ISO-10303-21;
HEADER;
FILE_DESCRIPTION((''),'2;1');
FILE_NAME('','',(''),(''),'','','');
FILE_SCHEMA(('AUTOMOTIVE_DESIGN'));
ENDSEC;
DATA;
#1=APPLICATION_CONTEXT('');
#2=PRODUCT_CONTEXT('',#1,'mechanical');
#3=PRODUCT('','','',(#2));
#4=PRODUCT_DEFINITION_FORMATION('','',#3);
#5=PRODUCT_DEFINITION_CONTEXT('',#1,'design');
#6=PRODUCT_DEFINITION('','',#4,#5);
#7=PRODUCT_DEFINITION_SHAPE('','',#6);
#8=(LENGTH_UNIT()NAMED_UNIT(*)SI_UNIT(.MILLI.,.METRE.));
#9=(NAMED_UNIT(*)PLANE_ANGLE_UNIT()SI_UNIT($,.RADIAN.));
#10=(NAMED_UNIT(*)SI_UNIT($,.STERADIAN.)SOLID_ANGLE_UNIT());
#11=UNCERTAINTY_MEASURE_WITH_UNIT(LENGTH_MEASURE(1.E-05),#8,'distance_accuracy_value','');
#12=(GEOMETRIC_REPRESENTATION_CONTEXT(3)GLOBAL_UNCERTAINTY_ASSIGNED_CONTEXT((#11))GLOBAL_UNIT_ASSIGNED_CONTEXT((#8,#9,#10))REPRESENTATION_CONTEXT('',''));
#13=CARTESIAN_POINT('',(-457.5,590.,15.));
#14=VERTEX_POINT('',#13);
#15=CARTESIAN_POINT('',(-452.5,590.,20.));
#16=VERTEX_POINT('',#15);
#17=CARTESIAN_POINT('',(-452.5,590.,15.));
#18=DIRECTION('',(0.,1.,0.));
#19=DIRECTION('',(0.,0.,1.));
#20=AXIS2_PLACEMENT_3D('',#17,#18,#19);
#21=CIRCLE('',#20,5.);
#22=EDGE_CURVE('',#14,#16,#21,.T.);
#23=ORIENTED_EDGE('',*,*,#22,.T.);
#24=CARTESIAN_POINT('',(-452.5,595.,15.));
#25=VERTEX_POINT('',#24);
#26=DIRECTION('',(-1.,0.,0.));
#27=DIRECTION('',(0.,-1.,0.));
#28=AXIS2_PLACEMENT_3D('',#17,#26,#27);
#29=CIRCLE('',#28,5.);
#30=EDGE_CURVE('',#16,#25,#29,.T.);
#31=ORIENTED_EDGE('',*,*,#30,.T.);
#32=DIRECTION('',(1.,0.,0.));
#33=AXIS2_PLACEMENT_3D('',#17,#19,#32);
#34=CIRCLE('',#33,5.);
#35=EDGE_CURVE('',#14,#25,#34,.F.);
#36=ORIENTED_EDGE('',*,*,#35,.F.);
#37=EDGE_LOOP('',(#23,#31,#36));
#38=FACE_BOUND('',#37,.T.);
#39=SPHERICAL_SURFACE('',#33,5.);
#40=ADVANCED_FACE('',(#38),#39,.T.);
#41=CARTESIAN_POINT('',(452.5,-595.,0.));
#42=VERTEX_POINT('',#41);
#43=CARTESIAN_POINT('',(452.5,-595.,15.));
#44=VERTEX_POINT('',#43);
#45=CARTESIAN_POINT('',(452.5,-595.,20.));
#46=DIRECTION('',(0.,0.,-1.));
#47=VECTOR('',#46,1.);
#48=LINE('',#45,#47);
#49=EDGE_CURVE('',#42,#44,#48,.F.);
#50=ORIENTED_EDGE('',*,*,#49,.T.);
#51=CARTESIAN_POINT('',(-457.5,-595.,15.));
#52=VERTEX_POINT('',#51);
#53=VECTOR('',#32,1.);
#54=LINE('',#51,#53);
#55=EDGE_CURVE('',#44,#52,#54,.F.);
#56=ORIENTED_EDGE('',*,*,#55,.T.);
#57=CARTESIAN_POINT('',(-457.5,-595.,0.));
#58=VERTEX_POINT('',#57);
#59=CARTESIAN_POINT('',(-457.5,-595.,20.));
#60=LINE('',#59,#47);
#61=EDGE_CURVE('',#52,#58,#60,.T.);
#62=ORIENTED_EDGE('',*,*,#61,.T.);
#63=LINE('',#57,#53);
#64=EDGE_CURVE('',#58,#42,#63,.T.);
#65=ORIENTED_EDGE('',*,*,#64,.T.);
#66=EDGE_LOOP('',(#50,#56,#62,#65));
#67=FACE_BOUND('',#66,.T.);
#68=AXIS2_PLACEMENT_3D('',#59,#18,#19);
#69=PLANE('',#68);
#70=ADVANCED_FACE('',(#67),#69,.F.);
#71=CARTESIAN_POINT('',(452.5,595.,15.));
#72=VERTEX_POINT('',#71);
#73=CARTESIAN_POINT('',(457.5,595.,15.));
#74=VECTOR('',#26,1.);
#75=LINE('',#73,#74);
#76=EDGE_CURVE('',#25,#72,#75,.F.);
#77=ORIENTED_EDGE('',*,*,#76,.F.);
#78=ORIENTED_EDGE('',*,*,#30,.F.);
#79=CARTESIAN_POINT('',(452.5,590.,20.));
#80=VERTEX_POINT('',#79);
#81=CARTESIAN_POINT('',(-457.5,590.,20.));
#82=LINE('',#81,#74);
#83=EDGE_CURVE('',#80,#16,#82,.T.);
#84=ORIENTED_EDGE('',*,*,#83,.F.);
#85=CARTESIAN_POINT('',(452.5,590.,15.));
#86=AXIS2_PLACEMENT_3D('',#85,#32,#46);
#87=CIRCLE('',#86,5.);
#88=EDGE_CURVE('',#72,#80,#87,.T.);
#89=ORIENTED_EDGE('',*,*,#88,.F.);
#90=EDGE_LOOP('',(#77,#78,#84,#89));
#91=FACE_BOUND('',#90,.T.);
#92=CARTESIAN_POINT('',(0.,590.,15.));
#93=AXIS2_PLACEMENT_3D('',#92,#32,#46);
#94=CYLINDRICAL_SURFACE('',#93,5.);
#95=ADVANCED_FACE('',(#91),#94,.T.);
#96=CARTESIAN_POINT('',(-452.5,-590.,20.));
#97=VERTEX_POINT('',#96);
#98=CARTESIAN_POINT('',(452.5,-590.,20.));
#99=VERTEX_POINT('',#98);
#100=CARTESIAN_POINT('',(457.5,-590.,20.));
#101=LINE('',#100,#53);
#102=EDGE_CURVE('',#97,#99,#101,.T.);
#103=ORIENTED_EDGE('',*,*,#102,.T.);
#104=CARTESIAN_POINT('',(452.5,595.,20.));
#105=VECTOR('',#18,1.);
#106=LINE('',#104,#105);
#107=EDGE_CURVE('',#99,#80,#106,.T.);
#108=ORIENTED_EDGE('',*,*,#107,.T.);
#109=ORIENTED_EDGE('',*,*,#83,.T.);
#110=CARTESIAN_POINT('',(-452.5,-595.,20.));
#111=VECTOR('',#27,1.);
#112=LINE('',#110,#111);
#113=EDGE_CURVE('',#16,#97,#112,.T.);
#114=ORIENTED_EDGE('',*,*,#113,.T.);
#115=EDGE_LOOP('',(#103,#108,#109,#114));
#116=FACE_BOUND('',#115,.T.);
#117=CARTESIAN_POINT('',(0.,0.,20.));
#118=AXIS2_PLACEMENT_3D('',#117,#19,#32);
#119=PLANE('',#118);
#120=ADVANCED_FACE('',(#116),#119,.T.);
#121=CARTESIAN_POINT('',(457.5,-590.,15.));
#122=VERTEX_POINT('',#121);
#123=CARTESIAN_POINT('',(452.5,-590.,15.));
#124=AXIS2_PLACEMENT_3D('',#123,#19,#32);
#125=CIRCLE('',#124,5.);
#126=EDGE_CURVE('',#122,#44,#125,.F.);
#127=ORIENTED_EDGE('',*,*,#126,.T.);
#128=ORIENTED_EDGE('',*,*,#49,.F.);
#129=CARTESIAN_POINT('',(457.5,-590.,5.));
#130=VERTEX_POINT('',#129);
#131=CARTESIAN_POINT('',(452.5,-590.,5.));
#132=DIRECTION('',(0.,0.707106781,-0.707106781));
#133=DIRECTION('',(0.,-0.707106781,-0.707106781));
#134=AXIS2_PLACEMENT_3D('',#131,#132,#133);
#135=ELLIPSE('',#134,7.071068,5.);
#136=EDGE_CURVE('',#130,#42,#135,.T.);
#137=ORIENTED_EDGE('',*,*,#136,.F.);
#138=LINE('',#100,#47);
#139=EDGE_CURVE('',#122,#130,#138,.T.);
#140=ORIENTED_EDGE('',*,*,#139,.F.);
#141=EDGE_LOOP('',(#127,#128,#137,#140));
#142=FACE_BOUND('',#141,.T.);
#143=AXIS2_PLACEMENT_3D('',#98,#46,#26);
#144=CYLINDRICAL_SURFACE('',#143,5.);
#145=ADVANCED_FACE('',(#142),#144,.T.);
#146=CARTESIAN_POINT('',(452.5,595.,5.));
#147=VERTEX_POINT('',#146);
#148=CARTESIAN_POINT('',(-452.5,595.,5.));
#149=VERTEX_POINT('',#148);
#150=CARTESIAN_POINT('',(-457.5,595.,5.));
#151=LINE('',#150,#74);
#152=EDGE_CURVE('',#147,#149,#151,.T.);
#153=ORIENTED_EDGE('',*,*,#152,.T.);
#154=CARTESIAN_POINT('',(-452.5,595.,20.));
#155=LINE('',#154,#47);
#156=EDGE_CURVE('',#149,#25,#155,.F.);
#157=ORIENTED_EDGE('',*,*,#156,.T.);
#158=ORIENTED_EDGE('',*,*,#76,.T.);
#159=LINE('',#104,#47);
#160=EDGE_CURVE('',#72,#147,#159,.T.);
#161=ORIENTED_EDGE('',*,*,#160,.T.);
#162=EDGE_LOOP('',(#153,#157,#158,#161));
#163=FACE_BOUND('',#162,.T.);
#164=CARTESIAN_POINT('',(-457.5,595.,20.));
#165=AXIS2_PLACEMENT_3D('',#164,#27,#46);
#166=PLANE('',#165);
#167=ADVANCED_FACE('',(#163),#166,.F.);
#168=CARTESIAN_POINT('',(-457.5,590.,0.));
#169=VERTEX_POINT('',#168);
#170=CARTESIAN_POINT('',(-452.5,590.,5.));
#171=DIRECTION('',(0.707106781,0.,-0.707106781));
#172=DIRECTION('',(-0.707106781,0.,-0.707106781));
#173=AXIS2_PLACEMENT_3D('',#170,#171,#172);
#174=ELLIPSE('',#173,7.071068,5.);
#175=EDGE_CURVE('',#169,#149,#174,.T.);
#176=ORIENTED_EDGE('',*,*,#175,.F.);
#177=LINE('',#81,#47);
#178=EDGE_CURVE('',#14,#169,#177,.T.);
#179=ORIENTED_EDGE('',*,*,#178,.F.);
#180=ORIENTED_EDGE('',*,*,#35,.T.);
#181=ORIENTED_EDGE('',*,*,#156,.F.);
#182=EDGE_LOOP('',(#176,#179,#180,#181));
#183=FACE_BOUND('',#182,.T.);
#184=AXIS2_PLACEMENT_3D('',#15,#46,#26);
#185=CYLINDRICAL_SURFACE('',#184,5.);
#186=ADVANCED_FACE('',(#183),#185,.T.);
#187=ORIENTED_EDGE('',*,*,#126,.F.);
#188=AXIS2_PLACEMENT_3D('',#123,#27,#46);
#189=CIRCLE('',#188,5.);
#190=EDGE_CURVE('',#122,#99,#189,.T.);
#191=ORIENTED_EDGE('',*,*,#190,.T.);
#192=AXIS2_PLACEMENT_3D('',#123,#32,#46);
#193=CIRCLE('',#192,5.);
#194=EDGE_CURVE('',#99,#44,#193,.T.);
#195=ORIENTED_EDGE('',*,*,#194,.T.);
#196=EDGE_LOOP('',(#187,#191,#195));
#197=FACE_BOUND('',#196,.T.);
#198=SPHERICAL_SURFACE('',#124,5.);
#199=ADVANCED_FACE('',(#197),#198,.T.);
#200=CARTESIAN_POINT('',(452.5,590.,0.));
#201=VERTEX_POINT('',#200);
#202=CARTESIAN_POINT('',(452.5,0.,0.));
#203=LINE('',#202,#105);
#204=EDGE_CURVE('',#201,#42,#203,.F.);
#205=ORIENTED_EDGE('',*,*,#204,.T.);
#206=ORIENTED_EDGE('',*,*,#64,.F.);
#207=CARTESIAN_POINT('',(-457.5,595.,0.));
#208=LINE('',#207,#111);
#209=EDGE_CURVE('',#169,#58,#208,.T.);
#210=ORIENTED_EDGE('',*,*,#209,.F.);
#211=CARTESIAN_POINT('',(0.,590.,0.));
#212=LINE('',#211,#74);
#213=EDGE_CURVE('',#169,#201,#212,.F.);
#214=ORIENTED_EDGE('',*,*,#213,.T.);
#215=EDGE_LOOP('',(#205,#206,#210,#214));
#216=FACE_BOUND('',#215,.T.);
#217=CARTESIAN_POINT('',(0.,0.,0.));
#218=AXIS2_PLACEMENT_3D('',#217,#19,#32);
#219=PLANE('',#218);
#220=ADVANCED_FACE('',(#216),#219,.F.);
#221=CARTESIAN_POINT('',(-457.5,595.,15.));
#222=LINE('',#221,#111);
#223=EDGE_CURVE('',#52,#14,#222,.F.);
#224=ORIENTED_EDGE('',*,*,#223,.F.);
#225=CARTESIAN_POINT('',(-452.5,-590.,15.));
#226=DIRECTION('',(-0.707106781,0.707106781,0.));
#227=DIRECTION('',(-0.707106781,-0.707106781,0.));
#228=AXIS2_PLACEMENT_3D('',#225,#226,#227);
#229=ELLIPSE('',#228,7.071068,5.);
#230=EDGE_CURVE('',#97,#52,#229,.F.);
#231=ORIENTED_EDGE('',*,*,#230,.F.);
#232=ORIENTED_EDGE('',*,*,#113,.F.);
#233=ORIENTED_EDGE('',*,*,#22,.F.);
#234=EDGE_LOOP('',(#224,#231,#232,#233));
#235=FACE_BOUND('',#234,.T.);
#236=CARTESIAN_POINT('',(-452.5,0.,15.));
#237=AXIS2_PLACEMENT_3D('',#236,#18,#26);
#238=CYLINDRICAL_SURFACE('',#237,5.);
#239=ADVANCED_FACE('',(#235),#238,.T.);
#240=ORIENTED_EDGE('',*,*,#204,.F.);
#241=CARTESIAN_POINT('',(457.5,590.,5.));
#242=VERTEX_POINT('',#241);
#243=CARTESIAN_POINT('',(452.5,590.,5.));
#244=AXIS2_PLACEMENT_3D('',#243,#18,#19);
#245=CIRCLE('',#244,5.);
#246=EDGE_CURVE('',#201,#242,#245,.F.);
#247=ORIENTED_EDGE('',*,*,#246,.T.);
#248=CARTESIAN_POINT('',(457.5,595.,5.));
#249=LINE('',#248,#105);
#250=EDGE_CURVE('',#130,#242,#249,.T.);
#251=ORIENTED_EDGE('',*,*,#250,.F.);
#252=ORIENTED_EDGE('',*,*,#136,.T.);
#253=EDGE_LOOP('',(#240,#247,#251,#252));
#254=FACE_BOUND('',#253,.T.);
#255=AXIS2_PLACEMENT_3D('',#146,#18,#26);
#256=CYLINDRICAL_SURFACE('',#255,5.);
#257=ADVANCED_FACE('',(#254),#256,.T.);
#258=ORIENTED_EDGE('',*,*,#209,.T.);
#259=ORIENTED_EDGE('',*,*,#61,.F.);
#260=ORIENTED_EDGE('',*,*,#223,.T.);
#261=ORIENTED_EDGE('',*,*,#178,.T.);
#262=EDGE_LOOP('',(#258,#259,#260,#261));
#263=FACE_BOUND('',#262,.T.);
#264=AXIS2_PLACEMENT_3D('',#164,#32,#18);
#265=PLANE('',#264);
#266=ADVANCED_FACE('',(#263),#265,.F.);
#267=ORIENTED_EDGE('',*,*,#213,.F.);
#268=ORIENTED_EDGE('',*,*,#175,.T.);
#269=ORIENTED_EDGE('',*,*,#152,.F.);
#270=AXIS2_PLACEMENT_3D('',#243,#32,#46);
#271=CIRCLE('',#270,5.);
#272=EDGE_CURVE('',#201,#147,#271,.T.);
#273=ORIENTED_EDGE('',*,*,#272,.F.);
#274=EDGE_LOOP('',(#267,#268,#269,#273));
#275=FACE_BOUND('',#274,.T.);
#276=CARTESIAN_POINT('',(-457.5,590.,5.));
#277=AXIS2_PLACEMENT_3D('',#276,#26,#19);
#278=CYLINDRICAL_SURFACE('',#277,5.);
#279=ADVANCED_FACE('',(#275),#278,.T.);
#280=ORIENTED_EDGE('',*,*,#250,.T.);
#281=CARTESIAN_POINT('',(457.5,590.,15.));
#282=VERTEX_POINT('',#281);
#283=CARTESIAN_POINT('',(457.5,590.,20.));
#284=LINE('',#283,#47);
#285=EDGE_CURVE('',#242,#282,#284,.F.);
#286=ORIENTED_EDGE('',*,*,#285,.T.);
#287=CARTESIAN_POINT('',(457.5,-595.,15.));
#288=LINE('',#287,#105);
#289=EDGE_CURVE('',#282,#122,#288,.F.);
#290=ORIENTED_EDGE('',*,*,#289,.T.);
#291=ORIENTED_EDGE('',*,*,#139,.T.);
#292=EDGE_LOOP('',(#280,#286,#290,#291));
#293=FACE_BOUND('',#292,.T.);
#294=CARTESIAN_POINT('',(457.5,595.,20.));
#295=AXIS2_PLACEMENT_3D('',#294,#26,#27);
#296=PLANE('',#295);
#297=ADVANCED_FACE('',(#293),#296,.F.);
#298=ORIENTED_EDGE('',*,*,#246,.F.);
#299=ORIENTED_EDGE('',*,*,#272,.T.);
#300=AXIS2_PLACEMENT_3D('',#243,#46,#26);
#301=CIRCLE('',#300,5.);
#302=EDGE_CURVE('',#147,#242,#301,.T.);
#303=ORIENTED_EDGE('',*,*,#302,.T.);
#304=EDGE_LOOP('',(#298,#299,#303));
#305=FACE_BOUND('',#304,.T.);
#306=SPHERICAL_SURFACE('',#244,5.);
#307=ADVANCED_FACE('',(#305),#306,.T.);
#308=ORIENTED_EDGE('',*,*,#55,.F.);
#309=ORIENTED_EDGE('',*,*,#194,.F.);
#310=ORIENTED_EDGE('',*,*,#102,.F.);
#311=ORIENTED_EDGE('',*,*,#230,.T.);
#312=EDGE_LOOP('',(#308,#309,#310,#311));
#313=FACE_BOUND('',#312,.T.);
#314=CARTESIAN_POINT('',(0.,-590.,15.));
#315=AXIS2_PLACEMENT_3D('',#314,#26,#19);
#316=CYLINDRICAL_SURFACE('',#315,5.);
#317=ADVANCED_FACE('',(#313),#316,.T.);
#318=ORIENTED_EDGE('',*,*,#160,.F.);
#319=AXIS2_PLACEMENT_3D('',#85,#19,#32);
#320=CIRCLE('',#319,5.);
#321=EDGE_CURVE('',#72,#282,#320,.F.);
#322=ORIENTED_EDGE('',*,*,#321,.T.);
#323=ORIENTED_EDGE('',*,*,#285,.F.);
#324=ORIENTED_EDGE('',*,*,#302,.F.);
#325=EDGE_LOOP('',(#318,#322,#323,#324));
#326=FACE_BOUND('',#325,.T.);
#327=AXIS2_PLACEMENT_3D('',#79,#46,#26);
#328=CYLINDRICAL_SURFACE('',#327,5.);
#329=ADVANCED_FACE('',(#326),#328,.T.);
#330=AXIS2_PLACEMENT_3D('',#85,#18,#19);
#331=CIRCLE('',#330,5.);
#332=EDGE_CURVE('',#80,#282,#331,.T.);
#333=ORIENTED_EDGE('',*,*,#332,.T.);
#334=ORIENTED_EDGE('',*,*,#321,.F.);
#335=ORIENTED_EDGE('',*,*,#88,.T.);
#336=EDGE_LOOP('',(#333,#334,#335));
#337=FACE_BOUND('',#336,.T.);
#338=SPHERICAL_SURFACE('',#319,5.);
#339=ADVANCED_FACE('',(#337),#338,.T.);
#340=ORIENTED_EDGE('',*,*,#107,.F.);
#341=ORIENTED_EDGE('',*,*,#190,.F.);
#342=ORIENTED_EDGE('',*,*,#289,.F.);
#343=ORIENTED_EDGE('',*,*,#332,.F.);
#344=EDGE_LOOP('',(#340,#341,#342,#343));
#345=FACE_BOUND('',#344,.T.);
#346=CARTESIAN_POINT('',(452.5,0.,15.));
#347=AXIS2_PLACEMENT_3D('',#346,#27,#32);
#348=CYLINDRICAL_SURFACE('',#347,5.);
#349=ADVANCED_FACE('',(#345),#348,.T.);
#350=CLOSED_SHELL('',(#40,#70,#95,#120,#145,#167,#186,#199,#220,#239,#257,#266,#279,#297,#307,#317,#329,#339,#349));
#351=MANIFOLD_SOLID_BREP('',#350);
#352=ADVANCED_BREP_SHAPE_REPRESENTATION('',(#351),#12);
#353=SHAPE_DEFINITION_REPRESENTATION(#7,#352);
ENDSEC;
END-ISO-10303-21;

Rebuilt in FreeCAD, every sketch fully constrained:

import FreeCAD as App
import Part
import Sketcher

V = App.Vector


def edges_at(feature, points):
    """Names of the edges that pass closest to the given points."""
    edges = feature.Shape.Edges
    near = lambda p: min(range(len(edges)), key=lambda i: edges[i].distToShape(Part.Vertex(*p))[0])
    return sorted({f"Edge{near(p) + 1}" for p in points})

doc = App.newDocument("Part")
params = doc.addObject("Spreadsheet::Sheet", "Params")
for row, (alias, value) in enumerate([
    ("sketch1_width", "915 mm"),
    ("sketch1_height", "1190 mm"),
    ("pad1_length", "20 mm"),
    ("fillet_radius", "5 mm"),
], start=1):
    params.set(f"A{row}", alias)
    params.set(f"B{row}", "=" + value)
    params.setAlias(f"B{row}", alias)

body = doc.addObject("PartDesign::Body", "Body")

sketch1 = body.newObject("Sketcher::SketchObject", "Sketch")
sketch1.AttachmentSupport = (doc.getObject("XY_Plane"), [""])
sketch1.MapMode = "FlatFace"
sketch1.addGeometry([
    Part.LineSegment(V(-457.5, 595, 0), V(-457.5, -595, 0)),
    Part.LineSegment(V(-457.5, -595, 0), V(457.5, -595, 0)),
    Part.LineSegment(V(457.5, -595, 0), V(457.5, 595, 0)),
    Part.LineSegment(V(457.5, 595, 0), V(-457.5, 595, 0)),
], False)
sketch1.addConstraint([
    Sketcher.Constraint("Coincident", 0, 2, 1, 1),
    Sketcher.Constraint("Coincident", 1, 2, 2, 1),
    Sketcher.Constraint("Coincident", 2, 2, 3, 1),
    Sketcher.Constraint("Coincident", 3, 2, 0, 1),
    Sketcher.Constraint("Vertical", 0),
    Sketcher.Constraint("Horizontal", 1),
    Sketcher.Constraint("Vertical", 2),
    Sketcher.Constraint("Horizontal", 3),
    Sketcher.Constraint("Symmetric", 0, 2, 2, 2, -1, 1),
    Sketcher.Constraint("DistanceX", 1, 1, 1, 2, 915.0),
    Sketcher.Constraint("DistanceY", 0, 2, 0, 1, 1190.0),
])
sketch1.setExpression("Constraints[9]", "Params.sketch1_width")
sketch1.setExpression("Constraints[10]", "Params.sketch1_height")
pad1 = body.newObject("PartDesign::Pad", "Pad")
pad1.Profile = sketch1
pad1.setExpression("Length", "Params.pad1_length")
doc.recompute()

fillet = body.newObject("PartDesign::Fillet", "Fillet")
fillet.Base = (pad1, edges_at(pad1, [
    (-457.5, 0, 20),
    (0, -595, 20),
    (457.5, 0, 20),
    (0, 595, 0),
    (457.5, 0, 0),
    (457.5, -595, 10),
    (-457.5, 595, 10),
    (457.5, 595, 10),
    (0, 595, 20),
]))
fillet.setExpression("Radius", "Params.fillet_radius")

doc.recompute()
